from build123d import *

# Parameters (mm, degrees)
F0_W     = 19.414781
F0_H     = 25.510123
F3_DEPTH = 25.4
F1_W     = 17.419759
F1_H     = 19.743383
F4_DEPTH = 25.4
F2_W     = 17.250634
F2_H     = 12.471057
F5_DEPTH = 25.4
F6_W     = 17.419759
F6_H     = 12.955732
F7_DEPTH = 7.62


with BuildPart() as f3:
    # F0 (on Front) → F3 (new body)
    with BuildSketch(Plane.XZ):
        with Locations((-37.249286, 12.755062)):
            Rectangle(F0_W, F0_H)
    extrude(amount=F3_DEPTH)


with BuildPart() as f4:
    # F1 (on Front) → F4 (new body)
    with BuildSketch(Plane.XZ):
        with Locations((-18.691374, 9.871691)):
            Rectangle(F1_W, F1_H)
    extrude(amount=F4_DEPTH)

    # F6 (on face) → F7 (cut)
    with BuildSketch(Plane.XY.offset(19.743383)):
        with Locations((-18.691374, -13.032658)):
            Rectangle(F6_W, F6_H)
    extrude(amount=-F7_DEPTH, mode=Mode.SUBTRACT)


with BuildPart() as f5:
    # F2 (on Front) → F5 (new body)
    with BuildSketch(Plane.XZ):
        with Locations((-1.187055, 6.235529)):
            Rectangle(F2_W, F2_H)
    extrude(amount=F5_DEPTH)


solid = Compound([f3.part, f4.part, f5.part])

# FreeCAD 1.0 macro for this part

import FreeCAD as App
import Part
import Sketcher

V = App.Vector
Q = App.Units.Quantity


def add_polygon(sketch, points):
    """Adds a closed chain of lines whose ends are joined by coincident constraints."""
    first, n = sketch.GeometryCount, len(points)
    for a, b in zip(points, points[1:] + points[:1]):
        sketch.addGeometry(Part.LineSegment(App.Vector(*a, 0), App.Vector(*b, 0)), False)
    for i in range(n):
        sketch.addConstraint(Sketcher.Constraint("Coincident", first + i, 2, first + (i + 1) % n, 1))

doc = App.newDocument("Part")
body = doc.addObject("PartDesign::Body", "Body")

sketch1 = doc.addObject("Sketcher::SketchObject", "Sketch")
body.addObject(sketch1)
sketch1.AttachmentSupport = (doc.XZ_Plane, [""])
sketch1.MapMode = "FlatFace"
add_polygon(sketch1, [(-46.956677, 25.510123), (-46.956677, 0), (-27.541895, 0), (-27.541895, 25.510123)])
sketch1.addConstraint([
    Sketcher.Constraint("Vertical", 0),
    Sketcher.Constraint("Horizontal", 1),
    Sketcher.Constraint("Vertical", 2),
    Sketcher.Constraint("Horizontal", 3),
    Sketcher.Constraint("PointOnObject", 0, 2, -1),
    Sketcher.Constraint("DistanceX", 1, 1, 1, 2, 19.414781),
    Sketcher.Constraint("DistanceY", 0, 2, 0, 1, 25.510123),
    Sketcher.Constraint("DistanceX", 0, 2, -1, 1, 46.956677),
])
pad1 = doc.addObject("PartDesign::Pad", "Pad")
body.addObject(pad1)
pad1.Profile = sketch1
pad1.Length = Q("1 in")
body2 = doc.addObject("PartDesign::Body", "Body001")

sketch2 = doc.addObject("Sketcher::SketchObject", "Sketch001")
body2.addObject(sketch2)
sketch2.AttachmentSupport = (doc.getObject("XZ_Plane001"), [""])
sketch2.MapMode = "FlatFace"
add_polygon(sketch2, [(-27.401253, 19.743382), (-27.401253, 0), (-9.981495, 0), (-9.981495, 19.743382)])
sketch2.addConstraint([
    Sketcher.Constraint("Vertical", 0),
    Sketcher.Constraint("Horizontal", 1),
    Sketcher.Constraint("Vertical", 2),
    Sketcher.Constraint("Horizontal", 3),
    Sketcher.Constraint("PointOnObject", 0, 2, -1),
    Sketcher.Constraint("DistanceX", 1, 1, 1, 2, 17.419759),
    Sketcher.Constraint("DistanceY", 0, 2, 0, 1, 19.743383),
    Sketcher.Constraint("DistanceX", 0, 2, -1, 1, 27.401253),
])
pad2 = doc.addObject("PartDesign::Pad", "Pad001")
body2.addObject(pad2)
pad2.Profile = sketch2
pad2.Length = Q("1 in")

sketch3 = doc.addObject("Sketcher::SketchObject", "Sketch002")
body2.addObject(sketch3)
sketch3.AttachmentSupport = (doc.getObject("XY_Plane001"), [""])
sketch3.MapMode = "FlatFace"
sketch3.AttachmentOffset = App.Placement(V(0, 0, 19.743383), App.Rotation())
add_polygon(sketch3, [(-27.401253, -6.554792), (-27.401253, -19.510524), (-9.981495, -19.510524), (-9.981495, -6.554792)])
sketch3.addConstraint([
    Sketcher.Constraint("Vertical", 0),
    Sketcher.Constraint("Horizontal", 1),
    Sketcher.Constraint("Vertical", 2),
    Sketcher.Constraint("Horizontal", 3),
    Sketcher.Constraint("DistanceX", 1, 1, 1, 2, 17.419759),
    Sketcher.Constraint("DistanceY", 0, 2, 0, 1, 12.955732),
    Sketcher.Constraint("DistanceX", 0, 2, -1, 1, 27.401253),
    Sketcher.Constraint("DistanceY", 0, 2, -1, 1, 19.510524),
])
pocket1 = doc.addObject("PartDesign::Pocket", "Pocket")
body2.addObject(pocket1)
pocket1.Profile = sketch3
pocket1.Length = Q("0.3 in")
body3 = doc.addObject("PartDesign::Body", "Body002")

sketch4 = doc.addObject("Sketcher::SketchObject", "Sketch003")
body3.addObject(sketch4)
sketch4.AttachmentSupport = (doc.getObject("XZ_Plane002"), [""])
sketch4.MapMode = "FlatFace"
add_polygon(sketch4, [(-9.812372, 12.471058), (-9.812372, 0), (7.438262, 0), (7.438262, 12.471058)])
sketch4.addConstraint([
    Sketcher.Constraint("Vertical", 0),
    Sketcher.Constraint("Horizontal", 1),
    Sketcher.Constraint("Vertical", 2),
    Sketcher.Constraint("Horizontal", 3),
    Sketcher.Constraint("PointOnObject", 0, 2, -1),
    Sketcher.Constraint("DistanceX", 1, 1, 1, 2, 17.250634),
    Sketcher.Constraint("DistanceY", 0, 2, 0, 1, 12.471057),
    Sketcher.Constraint("DistanceX", 0, 2, -1, 1, 9.812372),
])
pad3 = doc.addObject("PartDesign::Pad", "Pad002")
body3.addObject(pad3)
pad3.Profile = sketch4
pad3.Length = Q("1 in")

doc.recompute()
